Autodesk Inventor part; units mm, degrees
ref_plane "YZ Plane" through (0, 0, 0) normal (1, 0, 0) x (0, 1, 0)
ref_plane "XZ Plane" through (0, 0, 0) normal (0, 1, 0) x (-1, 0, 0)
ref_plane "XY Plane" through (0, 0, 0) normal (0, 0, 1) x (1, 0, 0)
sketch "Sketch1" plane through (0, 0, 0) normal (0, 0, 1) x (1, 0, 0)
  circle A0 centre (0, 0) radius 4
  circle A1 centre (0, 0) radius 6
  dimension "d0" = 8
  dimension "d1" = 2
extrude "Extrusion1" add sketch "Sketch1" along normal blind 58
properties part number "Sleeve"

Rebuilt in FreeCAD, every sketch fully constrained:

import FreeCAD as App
import Part
import Sketcher
Q = App.Units.Quantity

doc = App.newDocument("Part")
params = doc.addObject("Spreadsheet::Sheet", "Params")
for row, (alias, value) in enumerate([
    ("sketch1_diameter", "8 mm"),
    ("sketch1_diameter2", "12 mm"),
    ("pad1_length", "58 mm"),
], start=1):
    params.set(f"A{row}", alias)
    params.set(f"B{row}", "=" + value)
    params.setAlias(f"B{row}", alias)

body = doc.addObject("PartDesign::Body", "Body")

# Sketch on XY plane
sketch1 = body.newObject("Sketcher::SketchObject", "Sketch")
sketch1.AttachmentSupport = (doc.getObject("XY_Plane"), [""])
sketch1.MapMode = "FlatFace"
sketch1.addGeometry(Part.Circle(App.Vector(0, 0, 0), App.Vector(0, 0, 1), 6), False)
sketch1.addGeometry(Part.Circle(App.Vector(0, 0, 0), App.Vector(0, 0, 1), 4), False)
sketch1.addConstraint(Sketcher.Constraint("Coincident", 0, 3, -1, 1))
sketch1.addConstraint(Sketcher.Constraint("Coincident", 1, 3, -1, 1))
sketch1.addConstraint(Sketcher.Constraint("Diameter", 1, Q("8 mm")))
sketch1.addConstraint(Sketcher.Constraint("Diameter", 0, Q("12 mm")))
sketch1.setExpression("Constraints[2]", "Params.sketch1_diameter")
sketch1.setExpression("Constraints[3]", "Params.sketch1_diameter2")
pad1 = body.newObject("PartDesign::Pad", "Pad")
pad1.Profile = sketch1
pad1.setExpression("Length", "Params.pad1_length")

doc.recompute()
